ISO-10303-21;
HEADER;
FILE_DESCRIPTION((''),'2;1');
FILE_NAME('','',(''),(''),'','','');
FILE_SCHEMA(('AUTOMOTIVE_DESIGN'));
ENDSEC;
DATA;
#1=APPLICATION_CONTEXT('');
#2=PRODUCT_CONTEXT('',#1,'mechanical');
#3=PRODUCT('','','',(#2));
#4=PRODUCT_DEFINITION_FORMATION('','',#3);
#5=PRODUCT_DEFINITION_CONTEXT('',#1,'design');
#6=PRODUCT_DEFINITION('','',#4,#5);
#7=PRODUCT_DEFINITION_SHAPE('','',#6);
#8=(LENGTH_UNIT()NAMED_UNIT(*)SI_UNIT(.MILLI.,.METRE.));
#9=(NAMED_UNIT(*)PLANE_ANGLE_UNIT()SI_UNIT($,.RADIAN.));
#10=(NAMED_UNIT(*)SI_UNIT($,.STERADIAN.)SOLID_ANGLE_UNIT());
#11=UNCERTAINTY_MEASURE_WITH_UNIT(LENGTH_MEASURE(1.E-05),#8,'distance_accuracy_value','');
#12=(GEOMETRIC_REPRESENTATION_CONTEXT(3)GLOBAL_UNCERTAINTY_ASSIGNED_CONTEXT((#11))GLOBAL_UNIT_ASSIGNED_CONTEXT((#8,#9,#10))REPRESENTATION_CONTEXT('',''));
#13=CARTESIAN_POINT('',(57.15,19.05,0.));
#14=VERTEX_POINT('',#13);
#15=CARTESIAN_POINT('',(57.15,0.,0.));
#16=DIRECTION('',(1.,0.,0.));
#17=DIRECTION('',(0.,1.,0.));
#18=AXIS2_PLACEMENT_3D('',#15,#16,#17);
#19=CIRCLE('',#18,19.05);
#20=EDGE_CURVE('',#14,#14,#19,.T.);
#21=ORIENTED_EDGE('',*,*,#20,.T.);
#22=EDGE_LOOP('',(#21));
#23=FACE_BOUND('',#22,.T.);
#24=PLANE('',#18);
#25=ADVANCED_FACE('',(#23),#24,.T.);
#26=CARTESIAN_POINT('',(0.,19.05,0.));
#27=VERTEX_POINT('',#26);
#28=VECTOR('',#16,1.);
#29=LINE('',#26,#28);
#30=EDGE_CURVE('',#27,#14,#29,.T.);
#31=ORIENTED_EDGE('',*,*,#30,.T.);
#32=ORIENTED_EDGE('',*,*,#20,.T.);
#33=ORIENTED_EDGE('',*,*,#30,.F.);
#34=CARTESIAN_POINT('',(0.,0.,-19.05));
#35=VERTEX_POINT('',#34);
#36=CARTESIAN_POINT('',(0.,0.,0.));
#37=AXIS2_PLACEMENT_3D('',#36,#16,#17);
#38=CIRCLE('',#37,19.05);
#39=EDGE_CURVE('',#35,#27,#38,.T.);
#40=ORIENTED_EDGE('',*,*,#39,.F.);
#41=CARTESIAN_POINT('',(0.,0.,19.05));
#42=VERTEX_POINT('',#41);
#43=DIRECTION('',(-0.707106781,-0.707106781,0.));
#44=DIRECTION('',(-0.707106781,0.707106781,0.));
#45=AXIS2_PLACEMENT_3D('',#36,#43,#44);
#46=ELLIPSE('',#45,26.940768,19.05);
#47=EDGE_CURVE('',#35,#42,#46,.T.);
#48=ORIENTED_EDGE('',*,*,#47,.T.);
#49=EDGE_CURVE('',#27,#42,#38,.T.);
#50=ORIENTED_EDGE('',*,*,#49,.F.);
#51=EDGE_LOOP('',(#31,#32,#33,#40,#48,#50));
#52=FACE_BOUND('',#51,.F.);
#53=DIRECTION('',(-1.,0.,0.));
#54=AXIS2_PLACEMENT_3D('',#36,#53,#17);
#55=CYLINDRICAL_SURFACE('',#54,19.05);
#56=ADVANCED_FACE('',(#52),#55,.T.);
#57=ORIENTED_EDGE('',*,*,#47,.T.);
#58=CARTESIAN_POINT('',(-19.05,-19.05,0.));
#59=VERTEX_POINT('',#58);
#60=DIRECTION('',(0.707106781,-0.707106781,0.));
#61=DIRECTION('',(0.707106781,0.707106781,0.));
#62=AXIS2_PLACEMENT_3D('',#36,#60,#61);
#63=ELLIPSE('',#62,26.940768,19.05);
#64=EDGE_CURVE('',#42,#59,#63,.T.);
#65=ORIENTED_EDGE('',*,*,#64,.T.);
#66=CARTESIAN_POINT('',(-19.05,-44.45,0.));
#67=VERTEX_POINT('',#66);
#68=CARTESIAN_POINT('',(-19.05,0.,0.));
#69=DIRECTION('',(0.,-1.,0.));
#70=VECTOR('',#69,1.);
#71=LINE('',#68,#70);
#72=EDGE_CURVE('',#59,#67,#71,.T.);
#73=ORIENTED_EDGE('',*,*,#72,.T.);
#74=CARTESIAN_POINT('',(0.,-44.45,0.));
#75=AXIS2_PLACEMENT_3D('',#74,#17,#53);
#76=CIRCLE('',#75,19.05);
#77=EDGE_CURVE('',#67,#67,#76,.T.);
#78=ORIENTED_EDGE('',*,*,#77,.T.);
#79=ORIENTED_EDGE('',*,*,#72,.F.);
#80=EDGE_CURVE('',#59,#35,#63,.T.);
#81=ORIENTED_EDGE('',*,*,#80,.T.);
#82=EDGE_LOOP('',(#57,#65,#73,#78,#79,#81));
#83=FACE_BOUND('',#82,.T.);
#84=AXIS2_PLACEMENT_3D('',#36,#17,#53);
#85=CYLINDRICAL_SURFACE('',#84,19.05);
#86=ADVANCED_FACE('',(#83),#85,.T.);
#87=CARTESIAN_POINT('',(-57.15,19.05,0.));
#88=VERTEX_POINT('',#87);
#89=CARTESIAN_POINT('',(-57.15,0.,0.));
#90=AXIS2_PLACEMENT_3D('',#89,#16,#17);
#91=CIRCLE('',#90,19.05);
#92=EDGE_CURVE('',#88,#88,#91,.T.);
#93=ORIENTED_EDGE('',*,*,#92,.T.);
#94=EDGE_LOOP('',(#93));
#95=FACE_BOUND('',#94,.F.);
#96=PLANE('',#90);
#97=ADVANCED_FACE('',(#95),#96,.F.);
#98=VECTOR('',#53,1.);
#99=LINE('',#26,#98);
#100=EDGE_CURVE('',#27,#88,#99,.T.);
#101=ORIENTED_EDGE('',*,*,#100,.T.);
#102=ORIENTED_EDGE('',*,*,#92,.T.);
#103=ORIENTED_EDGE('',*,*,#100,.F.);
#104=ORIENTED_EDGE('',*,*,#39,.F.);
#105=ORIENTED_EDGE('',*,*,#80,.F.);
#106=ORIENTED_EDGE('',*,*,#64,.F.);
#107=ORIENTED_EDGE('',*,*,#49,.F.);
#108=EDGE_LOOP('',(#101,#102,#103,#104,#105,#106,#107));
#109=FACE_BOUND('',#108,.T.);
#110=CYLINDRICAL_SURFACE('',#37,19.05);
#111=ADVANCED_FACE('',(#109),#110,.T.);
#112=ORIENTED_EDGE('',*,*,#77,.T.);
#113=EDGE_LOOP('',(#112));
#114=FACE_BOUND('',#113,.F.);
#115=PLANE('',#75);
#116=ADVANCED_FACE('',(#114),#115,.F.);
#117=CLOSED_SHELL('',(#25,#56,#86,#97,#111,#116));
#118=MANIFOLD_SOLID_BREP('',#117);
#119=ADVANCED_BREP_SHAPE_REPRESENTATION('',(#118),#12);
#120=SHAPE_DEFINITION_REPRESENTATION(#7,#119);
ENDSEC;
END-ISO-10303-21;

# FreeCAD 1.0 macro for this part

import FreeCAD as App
import Part
import Sketcher
Q = App.Units.Quantity

doc = App.newDocument("Part")
body = doc.addObject("PartDesign::Body", "Body")

sketch1 = body.newObject("Sketcher::SketchObject", "Sketch")
sketch1.AttachmentSupport = (doc.getObject("YZ_Plane"), [""])
sketch1.MapMode = "FlatFace"
sketch1.addGeometry(Part.Circle(App.Vector(0, 0, 0), App.Vector(0, 0, 1), 19), False)
sketch1.addConstraint([
    Sketcher.Constraint("Coincident", 0, 3, -1, 1),
    Sketcher.Constraint("Diameter", 0, Q("1.5 in")),
])
pad1 = body.newObject("PartDesign::Pad", "Pad")
pad1.Profile = sketch1
pad1.Length = Q("4.5 in")
pad1.Midplane = True

sketch2 = body.newObject("Sketcher::SketchObject", "Sketch001")
sketch2.AttachmentSupport = (doc.getObject("XZ_Plane"), [""])
sketch2.MapMode = "FlatFace"
sketch2.addGeometry(Part.Circle(App.Vector(0, 0, 0), App.Vector(0, 0, 1), 19), False)
sketch2.addConstraint([
    Sketcher.Constraint("Coincident", 0, 3, -1, 1),
    Sketcher.Constraint("Diameter", 0, Q("1.5 in")),
])
pad2 = body.newObject("PartDesign::Pad", "Pad001")
pad2.Profile = sketch2
pad2.Length = Q("1.75 in")

doc.recompute()
